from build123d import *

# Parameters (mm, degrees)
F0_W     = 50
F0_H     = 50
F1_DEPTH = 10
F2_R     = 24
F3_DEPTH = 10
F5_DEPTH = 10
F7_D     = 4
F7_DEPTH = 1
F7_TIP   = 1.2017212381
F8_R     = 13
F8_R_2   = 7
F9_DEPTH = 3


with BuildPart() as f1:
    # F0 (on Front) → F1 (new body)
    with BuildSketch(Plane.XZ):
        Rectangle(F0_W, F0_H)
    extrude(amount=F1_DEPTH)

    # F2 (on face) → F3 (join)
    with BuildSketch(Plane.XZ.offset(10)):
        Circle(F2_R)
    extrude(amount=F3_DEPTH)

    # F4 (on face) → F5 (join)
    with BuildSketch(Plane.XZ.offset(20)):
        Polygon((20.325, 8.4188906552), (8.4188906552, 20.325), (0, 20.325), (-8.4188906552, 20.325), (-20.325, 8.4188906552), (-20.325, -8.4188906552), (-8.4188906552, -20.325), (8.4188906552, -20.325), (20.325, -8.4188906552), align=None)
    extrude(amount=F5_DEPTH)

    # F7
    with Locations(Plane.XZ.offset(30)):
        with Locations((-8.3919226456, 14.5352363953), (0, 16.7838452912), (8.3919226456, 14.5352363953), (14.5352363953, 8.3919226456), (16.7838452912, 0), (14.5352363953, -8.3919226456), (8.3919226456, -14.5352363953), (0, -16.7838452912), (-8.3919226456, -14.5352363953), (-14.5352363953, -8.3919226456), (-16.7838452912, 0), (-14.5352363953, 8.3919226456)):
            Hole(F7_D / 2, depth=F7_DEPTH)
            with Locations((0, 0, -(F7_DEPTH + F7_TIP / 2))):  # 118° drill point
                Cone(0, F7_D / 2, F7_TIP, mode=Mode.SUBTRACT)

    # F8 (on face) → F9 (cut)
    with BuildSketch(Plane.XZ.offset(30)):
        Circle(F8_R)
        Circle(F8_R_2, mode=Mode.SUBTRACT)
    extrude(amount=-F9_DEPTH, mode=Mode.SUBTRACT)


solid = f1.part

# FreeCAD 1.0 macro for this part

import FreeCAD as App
import Part
import Sketcher

V = App.Vector
Q = App.Units.Quantity


def add_polygon(sketch, points):
    """Adds a closed chain of lines whose ends are joined by coincident constraints."""
    first, n = sketch.GeometryCount, len(points)
    for a, b in zip(points, points[1:] + points[:1]):
        sketch.addGeometry(Part.LineSegment(App.Vector(*a, 0), App.Vector(*b, 0)), False)
    for i in range(n):
        sketch.addConstraint(Sketcher.Constraint("Coincident", first + i, 2, first + (i + 1) % n, 1))

doc = App.newDocument("Part")
body = doc.addObject("PartDesign::Body", "Body")

# Sketch on XZ plane
sketch1 = body.newObject("Sketcher::SketchObject", "Sketch")
sketch1.AttachmentSupport = (doc.getObject("XZ_Plane"), [""])
sketch1.MapMode = "FlatFace"
add_polygon(sketch1, [(-25, 25), (-25, -25), (25, -25), (25, 25)])  # lines 0-3
sketch1.addConstraint(Sketcher.Constraint("Vertical", 0))
sketch1.addConstraint(Sketcher.Constraint("Horizontal", 1))
sketch1.addConstraint(Sketcher.Constraint("Vertical", 2))
sketch1.addConstraint(Sketcher.Constraint("Horizontal", 3))
sketch1.addConstraint(Sketcher.Constraint("Symmetric", 0, 2, 2, 2, -1, 1))
sketch1.addConstraint(Sketcher.Constraint("Equal", 3, 0))
sketch1.addConstraint(Sketcher.Constraint("DistanceX", 1, 1, 1, 2, Q("50 mm")))
pad1 = body.newObject("PartDesign::Pad", "Pad")
pad1.Profile = sketch1
pad1.Length = 10

# Sketch on XZ plane
sketch2 = body.newObject("Sketcher::SketchObject", "Sketch001")
sketch2.AttachmentSupport = (doc.getObject("XZ_Plane"), [""])
sketch2.MapMode = "FlatFace"
sketch2.AttachmentOffset = App.Placement(V(0, 0, 10), App.Rotation())
sketch2.addGeometry(Part.Circle(V(0, 0, 0), V(0, 0, 1), 24), False)
sketch2.addConstraint(Sketcher.Constraint("Coincident", 0, 3, -1, 1))
sketch2.addConstraint(Sketcher.Constraint("Diameter", 0, Q("48 mm")))
pad2 = body.newObject("PartDesign::Pad", "Pad001")
pad2.Profile = sketch2
pad2.Length = 10

# Sketch on XZ plane
sketch3 = body.newObject("Sketcher::SketchObject", "Sketch002")
sketch3.AttachmentSupport = (doc.getObject("XZ_Plane"), [""])
sketch3.MapMode = "FlatFace"
sketch3.AttachmentOffset = App.Placement(V(0, 0, 20), App.Rotation())
add_polygon(sketch3, [(20, 8), (8, 20), (-8, 20), (-20, 8), (-20, -8), (-8, -20), (8, -20), (20, -8)])  # lines 0-7
sketch3.addConstraint(Sketcher.Constraint("Horizontal", 1))
sketch3.addConstraint(Sketcher.Constraint("Vertical", 3))
sketch3.addConstraint(Sketcher.Constraint("Horizontal", 5))
sketch3.addConstraint(Sketcher.Constraint("Vertical", 7))
sketch3.addConstraint(Sketcher.Constraint("Symmetric", 0, 2, 4, 2, -1, 1))
sketch3.addConstraint(Sketcher.Constraint("Symmetric", 2, 2, 6, 2, -1, 1))
sketch3.addConstraint(Sketcher.Constraint("Perpendicular", 0, 2))
sketch3.addConstraint(Sketcher.Constraint("Perpendicular", 2, 4))
sketch3.addConstraint(Sketcher.Constraint("Perpendicular", 4, 6))
sketch3.addConstraint(Sketcher.Constraint("Horizontal", 3, 2, 6, 2))
sketch3.addConstraint(Sketcher.Constraint("Vertical", 1, 2, 4, 2))
sketch3.addConstraint(Sketcher.Constraint("Equal", 5, 3))
sketch3.addConstraint(Sketcher.Constraint("DistanceY", 4, 2, 1, 2, Q("40.65 mm")))
sketch3.addConstraint(Sketcher.Constraint("DistanceX", 1, 2, 1, 1, Q("16.837781 mm")))
pad3 = body.newObject("PartDesign::Pad", "Pad002")
pad3.Profile = sketch3
pad3.Length = 10

# Sketch on XZ plane
sketch4 = body.newObject("Sketcher::SketchObject", "Sketch003")
sketch4.AttachmentSupport = (doc.getObject("XZ_Plane"), [""])
sketch4.MapMode = "FlatFace"
sketch4.AttachmentOffset = App.Placement(V(0, 0, 30), App.Rotation())
sketch4.addGeometry(Part.Circle(V(-8.4, 14.5, 0), V(0, 0, 1), 2), False)
sketch4.addGeometry(Part.Circle(V(0, 16.8, 0), V(0, 0, 1), 2), False)
sketch4.addGeometry(Part.Circle(V(8.4, 14.5, 0), V(0, 0, 1), 2), False)
sketch4.addGeometry(Part.Circle(V(14.5, 8.4, 0), V(0, 0, 1), 2), False)
sketch4.addGeometry(Part.Circle(V(16.8, 0, 0), V(0, 0, 1), 2), False)
sketch4.addGeometry(Part.Circle(V(14.5, -8.4, 0), V(0, 0, 1), 2), False)
sketch4.addGeometry(Part.Circle(V(8.4, -14.5, 0), V(0, 0, 1), 2), False)
sketch4.addGeometry(Part.Circle(V(0, -16.8, 0), V(0, 0, 1), 2), False)
sketch4.addGeometry(Part.Circle(V(-8.4, -14.5, 0), V(0, 0, 1), 2), False)
sketch4.addGeometry(Part.Circle(V(-14.5, -8.4, 0), V(0, 0, 1), 2), False)
sketch4.addGeometry(Part.Circle(V(-16.8, 0, 0), V(0, 0, 1), 2), False)
sketch4.addGeometry(Part.Circle(V(-14.5, 8.4, 0), V(0, 0, 1), 2), False)
sketch4.addConstraint(Sketcher.Constraint("Equal", 0, 1))
sketch4.addConstraint(Sketcher.Constraint("Equal", 1, 2))
sketch4.addConstraint(Sketcher.Constraint("Equal", 2, 3))
sketch4.addConstraint(Sketcher.Constraint("Equal", 3, 4))
sketch4.addConstraint(Sketcher.Constraint("Equal", 4, 5))
sketch4.addConstraint(Sketcher.Constraint("Equal", 5, 6))
sketch4.addConstraint(Sketcher.Constraint("Equal", 6, 7))
sketch4.addConstraint(Sketcher.Constraint("Equal", 7, 8))
sketch4.addConstraint(Sketcher.Constraint("Equal", 8, 9))
sketch4.addConstraint(Sketcher.Constraint("Equal", 9, 10))
sketch4.addConstraint(Sketcher.Constraint("Equal", 10, 11))
sketch4.addConstraint(Sketcher.Constraint("Symmetric", 0, 3, 6, 3, -1, 1))
sketch4.addConstraint(Sketcher.Constraint("Symmetric", 1, 3, 7, 3, -1, 1))
sketch4.addConstraint(Sketcher.Constraint("Symmetric", 2, 3, 8, 3, -1, 1))
sketch4.addConstraint(Sketcher.Constraint("Symmetric", 3, 3, 9, 3, -1, 1))
sketch4.addConstraint(Sketcher.Constraint("Symmetric", 4, 3, 10, 3, -1, 1))
sketch4.addConstraint(Sketcher.Constraint("Symmetric", 5, 3, 11, 3, -1, 1))
sketch4.addConstraint(Sketcher.Constraint("Symmetric", 0, 3, 2, 3, -2))
sketch4.addConstraint(Sketcher.Constraint("Symmetric", 5, 3, 9, 3, -2))
sketch4.addConstraint(Sketcher.Constraint("PointOnObject", 1, 3, -2))
sketch4.addConstraint(Sketcher.Constraint("PointOnObject", 4, 3, -1))
sketch4.addConstraint(Sketcher.Constraint("Diameter", 0, Q("4 mm")))
sketch4.addConstraint(Sketcher.Constraint("DistanceY", 0, 3, 1, 3, Q("2.248609 mm")))
sketch4.addConstraint(Sketcher.Constraint("DistanceX", 0, 3, 3, 3, Q("22.927159 mm")))
sketch4.addConstraint(Sketcher.Constraint("DistanceX", 3, 3, 4, 3, Q("2.248609 mm")))
sketch4.addConstraint(Sketcher.Constraint("DistanceY", 5, 3, 2, 3, Q("22.927159 mm")))
sketch4.addConstraint(Sketcher.Constraint("DistanceY", 6, 3, 1, 3, Q("31.319082 mm")))
sketch4.addConstraint(Sketcher.Constraint("DistanceX", 0, 3, -1, 1, Q("8.391923 mm")))
doc.recompute()
hole = body.newObject("PartDesign::Hole", "Hole")
hole.Profile = sketch4
hole.ThreadType = "None"
hole.Diameter = 4
hole.DepthType = "Dimension"
hole.Depth = 1
hole.DrillPoint = "Angled"
hole.DrillPointAngle = 118

# Sketch on XZ plane
sketch5 = body.newObject("Sketcher::SketchObject", "Sketch004")
sketch5.AttachmentSupport = (doc.getObject("XZ_Plane"), [""])
sketch5.MapMode = "FlatFace"
sketch5.AttachmentOffset = App.Placement(V(0, 0, 30), App.Rotation())
sketch5.addGeometry(Part.Circle(V(0, 0, 0), V(0, 0, 1), 13), False)
sketch5.addGeometry(Part.Circle(V(0, 0, 0), V(0, 0, 1), 7), False)
sketch5.addConstraint(Sketcher.Constraint("Coincident", 0, 3, -1, 1))
sketch5.addConstraint(Sketcher.Constraint("Coincident", 1, 3, -1, 1))
sketch5.addConstraint(Sketcher.Constraint("Diameter", 0, Q("26 mm")))
sketch5.addConstraint(Sketcher.Constraint("Diameter", 1, Q("14 mm")))
pocket1 = body.newObject("PartDesign::Pocket", "Pocket")
pocket1.Profile = sketch5
pocket1.Length = 3

doc.recompute()
